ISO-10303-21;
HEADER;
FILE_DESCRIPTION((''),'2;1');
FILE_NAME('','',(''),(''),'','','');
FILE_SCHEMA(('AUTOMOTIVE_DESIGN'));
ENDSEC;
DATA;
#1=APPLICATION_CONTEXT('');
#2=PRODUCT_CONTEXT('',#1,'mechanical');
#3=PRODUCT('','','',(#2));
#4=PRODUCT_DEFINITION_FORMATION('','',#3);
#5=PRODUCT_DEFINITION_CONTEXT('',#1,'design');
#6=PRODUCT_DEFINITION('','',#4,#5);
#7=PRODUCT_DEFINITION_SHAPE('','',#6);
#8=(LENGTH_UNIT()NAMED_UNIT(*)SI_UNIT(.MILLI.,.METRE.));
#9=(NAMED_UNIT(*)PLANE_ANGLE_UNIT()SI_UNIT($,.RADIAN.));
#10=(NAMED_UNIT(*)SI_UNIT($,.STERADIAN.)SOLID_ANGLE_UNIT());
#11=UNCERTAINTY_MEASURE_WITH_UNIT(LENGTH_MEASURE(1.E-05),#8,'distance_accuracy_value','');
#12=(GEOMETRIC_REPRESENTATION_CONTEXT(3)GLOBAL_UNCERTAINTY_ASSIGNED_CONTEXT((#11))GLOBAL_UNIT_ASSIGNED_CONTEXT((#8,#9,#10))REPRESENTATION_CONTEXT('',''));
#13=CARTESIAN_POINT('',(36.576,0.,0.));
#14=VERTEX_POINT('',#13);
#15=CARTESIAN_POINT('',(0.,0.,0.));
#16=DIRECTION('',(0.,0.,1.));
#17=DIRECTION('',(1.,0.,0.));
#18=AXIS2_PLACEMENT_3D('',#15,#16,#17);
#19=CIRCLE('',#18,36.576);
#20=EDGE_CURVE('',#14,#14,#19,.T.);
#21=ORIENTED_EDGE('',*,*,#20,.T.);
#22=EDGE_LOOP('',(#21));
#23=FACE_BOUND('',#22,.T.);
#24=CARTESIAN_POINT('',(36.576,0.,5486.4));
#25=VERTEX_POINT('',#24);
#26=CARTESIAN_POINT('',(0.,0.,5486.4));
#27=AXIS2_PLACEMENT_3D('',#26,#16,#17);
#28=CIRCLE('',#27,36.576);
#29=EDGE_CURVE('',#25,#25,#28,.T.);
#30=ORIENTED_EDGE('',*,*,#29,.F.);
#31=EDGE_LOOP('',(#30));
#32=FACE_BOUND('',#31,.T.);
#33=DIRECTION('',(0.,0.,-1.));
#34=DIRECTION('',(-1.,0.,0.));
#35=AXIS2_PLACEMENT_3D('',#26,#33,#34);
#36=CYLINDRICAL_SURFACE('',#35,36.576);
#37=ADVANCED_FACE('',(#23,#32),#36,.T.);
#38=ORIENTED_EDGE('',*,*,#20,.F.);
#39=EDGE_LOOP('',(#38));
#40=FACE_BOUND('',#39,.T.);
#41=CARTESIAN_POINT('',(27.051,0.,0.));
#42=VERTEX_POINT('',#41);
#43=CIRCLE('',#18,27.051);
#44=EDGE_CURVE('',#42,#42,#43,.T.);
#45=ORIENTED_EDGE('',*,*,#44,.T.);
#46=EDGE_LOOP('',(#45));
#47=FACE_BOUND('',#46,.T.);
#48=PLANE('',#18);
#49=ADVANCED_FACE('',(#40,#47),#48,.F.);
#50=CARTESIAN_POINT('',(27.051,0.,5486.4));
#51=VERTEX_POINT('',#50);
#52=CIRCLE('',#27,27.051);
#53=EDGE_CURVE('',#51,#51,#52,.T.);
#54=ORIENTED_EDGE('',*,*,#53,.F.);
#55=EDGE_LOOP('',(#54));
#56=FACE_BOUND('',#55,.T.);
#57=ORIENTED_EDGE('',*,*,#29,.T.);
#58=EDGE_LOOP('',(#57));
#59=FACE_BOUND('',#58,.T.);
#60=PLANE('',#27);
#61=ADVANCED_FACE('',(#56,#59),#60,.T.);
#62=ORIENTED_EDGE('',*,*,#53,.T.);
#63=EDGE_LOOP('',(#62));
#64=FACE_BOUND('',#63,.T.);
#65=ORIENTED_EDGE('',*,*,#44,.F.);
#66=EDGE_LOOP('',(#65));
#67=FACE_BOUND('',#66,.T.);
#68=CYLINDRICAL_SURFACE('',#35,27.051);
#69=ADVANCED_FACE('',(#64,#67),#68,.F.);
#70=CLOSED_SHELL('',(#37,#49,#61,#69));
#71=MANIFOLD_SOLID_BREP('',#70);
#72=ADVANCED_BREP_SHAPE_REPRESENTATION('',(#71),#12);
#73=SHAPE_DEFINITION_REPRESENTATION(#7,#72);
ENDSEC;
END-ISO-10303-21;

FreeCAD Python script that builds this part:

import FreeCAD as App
import Part
import Sketcher

V = App.Vector
Q = App.Units.Quantity

doc = App.newDocument("Part")
body = doc.addObject("PartDesign::Body", "Body")

sketch1 = body.newObject("Sketcher::SketchObject", "Sketch")
sketch1.AttachmentSupport = (doc.getObject("XY_Plane"), [""])
sketch1.MapMode = "FlatFace"
sketch1.addGeometry(Part.Circle(V(0, 0, 0), V(0, 0, 1), 37), False)
sketch1.addGeometry(Part.Circle(V(0, 0, 0), V(0, 0, 1), 27), False)
sketch1.addConstraint(Sketcher.Constraint("Coincident", 0, 3, -1, 1))
sketch1.addConstraint(Sketcher.Constraint("Coincident", 1, 3, -1, 1))
sketch1.addConstraint(Sketcher.Constraint("Diameter", 0, Q("2.88 in")))
sketch1.addConstraint(Sketcher.Constraint("Diameter", 1, Q("2.13 in")))
pad1 = body.newObject("PartDesign::Pad", "Pad")
pad1.Profile = sketch1
pad1.Length = Q("216 in")

doc.recompute()
